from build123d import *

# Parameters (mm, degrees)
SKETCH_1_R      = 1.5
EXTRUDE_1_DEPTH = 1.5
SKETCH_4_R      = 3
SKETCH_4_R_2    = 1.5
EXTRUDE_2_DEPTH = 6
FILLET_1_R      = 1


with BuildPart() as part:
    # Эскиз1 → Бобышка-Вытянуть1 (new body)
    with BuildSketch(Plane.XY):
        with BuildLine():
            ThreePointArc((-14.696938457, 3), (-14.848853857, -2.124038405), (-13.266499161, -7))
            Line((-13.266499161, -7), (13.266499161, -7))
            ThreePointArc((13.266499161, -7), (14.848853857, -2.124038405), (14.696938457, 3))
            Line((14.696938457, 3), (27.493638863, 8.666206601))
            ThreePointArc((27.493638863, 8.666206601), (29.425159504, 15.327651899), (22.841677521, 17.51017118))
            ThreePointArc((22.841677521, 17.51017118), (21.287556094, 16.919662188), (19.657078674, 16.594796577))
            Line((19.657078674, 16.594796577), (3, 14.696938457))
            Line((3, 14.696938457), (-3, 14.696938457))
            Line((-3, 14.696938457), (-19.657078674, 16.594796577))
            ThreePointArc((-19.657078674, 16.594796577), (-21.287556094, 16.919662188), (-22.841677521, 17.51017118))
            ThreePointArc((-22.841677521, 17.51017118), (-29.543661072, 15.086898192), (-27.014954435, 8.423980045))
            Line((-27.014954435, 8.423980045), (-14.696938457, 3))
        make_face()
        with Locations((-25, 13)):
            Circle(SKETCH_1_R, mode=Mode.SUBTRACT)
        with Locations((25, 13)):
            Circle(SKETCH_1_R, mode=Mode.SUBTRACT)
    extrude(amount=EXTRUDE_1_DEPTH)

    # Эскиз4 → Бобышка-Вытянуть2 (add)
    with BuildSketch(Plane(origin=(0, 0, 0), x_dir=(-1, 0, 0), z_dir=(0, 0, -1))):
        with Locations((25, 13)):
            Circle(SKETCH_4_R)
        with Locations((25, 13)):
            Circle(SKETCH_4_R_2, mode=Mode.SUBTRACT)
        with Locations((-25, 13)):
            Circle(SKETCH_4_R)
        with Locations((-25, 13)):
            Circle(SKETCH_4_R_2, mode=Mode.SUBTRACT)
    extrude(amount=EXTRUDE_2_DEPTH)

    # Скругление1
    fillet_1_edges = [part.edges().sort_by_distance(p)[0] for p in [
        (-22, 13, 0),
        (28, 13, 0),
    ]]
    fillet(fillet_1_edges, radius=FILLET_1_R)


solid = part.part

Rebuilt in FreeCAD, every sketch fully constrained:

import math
import FreeCAD as App
import Part
import Sketcher


def edges_at(feature, points):
    """Names of the edges that pass closest to the given points."""
    edges = feature.Shape.Edges
    near = lambda p: min(range(len(edges)), key=lambda i: edges[i].distToShape(Part.Vertex(*p))[0])
    return sorted({f"Edge{near(p) + 1}" for p in points})

doc = App.newDocument("Part")
body = doc.addObject("PartDesign::Body", "Body")

# Sketch on XY plane
sketch1 = body.newObject("Sketcher::SketchObject", "Sketch")
sketch1.AttachmentSupport = (doc.getObject("XY_Plane"), [""])
sketch1.MapMode = "FlatFace"
sketch1.addGeometry([
    Part.ArcOfCircle(Part.Circle(App.Vector(0, 0, 0), App.Vector(0, 0, 1), 15), math.radians(168), math.radians(208)),  # 0
    Part.LineSegment(App.Vector(-13.3, -7, 0), App.Vector(13.3, -7, 0)),  # 1
    Part.ArcOfCircle(Part.Circle(App.Vector(0, 0, 0), App.Vector(0, 0, 1), 15), math.radians(-28), math.radians(12)),  # 2
    Part.LineSegment(App.Vector(14.7, 3, 0), App.Vector(27.5, 8.7, 0)),  # 3
    Part.ArcOfCircle(Part.Circle(App.Vector(25, 13, 0), App.Vector(0, 0, 1), 5), math.radians(-60), math.radians(116)),  # 4
    Part.ArcOfCircle(Part.Circle(App.Vector(18.5, 26.5, 0), App.Vector(0, 0, 1), 10), math.radians(-83.5), math.radians(-64.43)),  # 5
    Part.LineSegment(App.Vector(19.7, 16.6, 0), App.Vector(3, 14.7, 0)),  # 6
    Part.LineSegment(App.Vector(3, 14.7, 0), App.Vector(-3, 14.7, 0)),  # 7
    Part.LineSegment(App.Vector(-3, 14.7, 0), App.Vector(-19.7, 16.6, 0)),  # 8
    Part.ArcOfCircle(Part.Circle(App.Vector(-18.5, 26.5, 0), App.Vector(0, 0, 1), 10), math.radians(-115.57), math.radians(-96.5)),  # 9
    Part.ArcOfCircle(Part.Circle(App.Vector(-25, 13, 0), App.Vector(0, 0, 1), 5), math.radians(64), math.radians(246)),  # 10
    Part.LineSegment(App.Vector(-27, 8.4, 0), App.Vector(-14.7, 3, 0)),  # 11
    Part.Circle(App.Vector(-25, 13, 0), App.Vector(0, 0, 1), 1.5),  # 12
    Part.Circle(App.Vector(25, 13, 0), App.Vector(0, 0, 1), 1.5),  # 13
], False)
sketch1.addConstraint([
    Sketcher.Constraint("Coincident", 0, 2, 1, 1),
    Sketcher.Constraint("Coincident", 1, 2, 2, 1),
    Sketcher.Constraint("Coincident", 2, 2, 3, 1),
    Sketcher.Constraint("Coincident", 3, 2, 4, 1),
    Sketcher.Constraint("Tangent", 4, 2, 5, 2),
    Sketcher.Constraint("Tangent", 5, 1, 6, 1),
    Sketcher.Constraint("Coincident", 6, 2, 7, 1),
    Sketcher.Constraint("Coincident", 7, 2, 8, 1),
    Sketcher.Constraint("Tangent", 8, 2, 9, 2),
    Sketcher.Constraint("Tangent", 9, 1, 10, 1),
    Sketcher.Constraint("Tangent", 10, 2, 11, 1),
    Sketcher.Constraint("Coincident", 11, 2, 0, 1),
    Sketcher.Constraint("Horizontal", 1),
    Sketcher.Constraint("Horizontal", 7),
    Sketcher.Constraint("Coincident", 0, 3, -1, 1),
    Sketcher.Constraint("Coincident", 2, 3, -1, 1),
    Sketcher.Constraint("Coincident", 12, 3, 10, 3),
    Sketcher.Constraint("Coincident", 13, 3, 4, 3),
    Sketcher.Constraint("Equal", 0, 2),
    Sketcher.Constraint("Equal", 5, 9),
    Sketcher.Constraint("Equal", 4, 10),
    Sketcher.Constraint("Equal", 12, 13),
    Sketcher.Constraint("Symmetric", 5, 3, 9, 3, -2),
    Sketcher.Constraint("Horizontal", 4, 3, 10, 3),
    Sketcher.Constraint("Horizontal", 5, 1, 8, 2),
    Sketcher.Constraint("Horizontal", 2, 2, 11, 2),
    Sketcher.Constraint("Diameter", 12, 3.0),
    Sketcher.Constraint("Radius", 0, 15.0),
    Sketcher.Constraint("Radius", 4, 5.0),
    Sketcher.Constraint("Radius", 5, 10.0),
    Sketcher.Constraint("DistanceX", 7, 2, 7, 1, 6.0),
    Sketcher.Constraint("DistanceX", -1, 1, 4, 3, 25.0),
    Sketcher.Constraint("DistanceY", -1, 1, 4, 3, 13.0),
    Sketcher.Constraint("DistanceY", 0, 2, -1, 1, 7.0),
    Sketcher.Constraint("DistanceY", -1, 1, 2, 2, 3.0),
    Sketcher.Constraint("DistanceX", 2, 2, 3, 2, 12.7967),
    Sketcher.Constraint("DistanceX", 5, 1, 4, 2, 3.184599),
    Sketcher.Constraint("Distance", 6, 16.764848),
])
pad1 = body.newObject("PartDesign::Pad", "Pad")
pad1.Profile = sketch1
pad1.Length = 1.5

# Sketch on XY plane
sketch2 = body.newObject("Sketcher::SketchObject", "Sketch001")
sketch2.AttachmentSupport = (doc.getObject("XY_Plane"), [""])
sketch2.MapMode = "FlatFace"
sketch2.addGeometry([
    Part.Circle(App.Vector(-25, 13, 0), App.Vector(0, 0, 1), 3),
    Part.Circle(App.Vector(-25, 13, 0), App.Vector(0, 0, 1), 1.5),
    Part.Circle(App.Vector(25, 13, 0), App.Vector(0, 0, 1), 3),
    Part.Circle(App.Vector(25, 13, 0), App.Vector(0, 0, 1), 1.5),
], False)
sketch2.addConstraint([
    Sketcher.Constraint("Coincident", 1, 3, 0, 3),
    Sketcher.Constraint("Coincident", 3, 3, 2, 3),
    Sketcher.Constraint("Equal", 0, 2),
    Sketcher.Constraint("Equal", 1, 3),
    Sketcher.Constraint("Symmetric", 0, 3, 2, 3, -2),
    Sketcher.Constraint("Diameter", 0, 6.0),
    Sketcher.Constraint("Diameter", 1, 3.0),
    Sketcher.Constraint("DistanceX", 0, 3, -1, 1, 25.0),
    Sketcher.Constraint("DistanceY", -1, 1, 0, 3, 13.0),
])
pad2 = body.newObject("PartDesign::Pad", "Pad001")
pad2.Profile = sketch2
pad2.Length = 6
pad2.Reversed = True
doc.recompute()

fillet = body.newObject("PartDesign::Fillet", "Fillet")
fillet.Base = (pad2, edges_at(pad2, [(-22, 13, 0), (28, 13, 0)]))
fillet.Radius = 1

doc.recompute()
